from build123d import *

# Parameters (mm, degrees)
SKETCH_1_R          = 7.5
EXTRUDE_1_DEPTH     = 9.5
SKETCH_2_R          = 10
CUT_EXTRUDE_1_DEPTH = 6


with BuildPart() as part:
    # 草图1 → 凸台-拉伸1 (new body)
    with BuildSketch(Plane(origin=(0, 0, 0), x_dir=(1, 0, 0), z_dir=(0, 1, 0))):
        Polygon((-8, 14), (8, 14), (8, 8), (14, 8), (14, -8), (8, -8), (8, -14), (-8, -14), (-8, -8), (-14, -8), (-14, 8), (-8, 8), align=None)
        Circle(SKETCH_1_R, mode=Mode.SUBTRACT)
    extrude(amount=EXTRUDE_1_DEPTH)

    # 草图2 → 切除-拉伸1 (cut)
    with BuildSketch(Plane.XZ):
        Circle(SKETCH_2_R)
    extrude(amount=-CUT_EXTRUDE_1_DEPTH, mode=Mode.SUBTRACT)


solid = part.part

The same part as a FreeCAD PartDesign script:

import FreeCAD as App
import Part
import Sketcher
Q = App.Units.Quantity

doc = App.newDocument("Part")
params = doc.addObject("Spreadsheet::Sheet", "Params")
for row, (alias, value) in enumerate([
    ("sketch1_diameter", "15 mm"),
    ("sketch1_width", "16 mm"),
    ("sketch1_width2", "6 mm"),
    ("pad1_length", "9.5 mm"),
    ("sketch2_diameter", "20 mm"),
    ("pocket1_length", "6 mm"),
], start=1):
    params.set(f"A{row}", alias)
    params.set(f"B{row}", "=" + value)
    params.setAlias(f"B{row}", alias)

body = doc.addObject("PartDesign::Body", "Body")

# Sketch on XZ plane
sketch1 = body.newObject("Sketcher::SketchObject", "Sketch")
sketch1.AttachmentSupport = (doc.getObject("XZ_Plane"), [""])
sketch1.MapMode = "FlatFace"
sketch1.addGeometry([
    Part.LineSegment(App.Vector(8, -14, 0), App.Vector(-8, -14, 0)),  # 0
    Part.LineSegment(App.Vector(-8, -14, 0), App.Vector(-8, -8, 0)),  # 1
    Part.LineSegment(App.Vector(-8, -8, 0), App.Vector(-14, -8, 0)),  # 2
    Part.LineSegment(App.Vector(-14, -8, 0), App.Vector(-14, 8, 0)),  # 3
    Part.LineSegment(App.Vector(-14, 8, 0), App.Vector(-8, 8, 0)),  # 4
    Part.LineSegment(App.Vector(-8, 8, 0), App.Vector(-8, 14, 0)),  # 5
    Part.LineSegment(App.Vector(-8, 14, 0), App.Vector(8, 14, 0)),  # 6
    Part.LineSegment(App.Vector(8, 14, 0), App.Vector(8, 8, 0)),  # 7
    Part.LineSegment(App.Vector(8, 8, 0), App.Vector(14, 8, 0)),  # 8
    Part.LineSegment(App.Vector(14, 8, 0), App.Vector(14, -8, 0)),  # 9
    Part.LineSegment(App.Vector(14, -8, 0), App.Vector(8, -8, 0)),  # 10
    Part.LineSegment(App.Vector(8, -8, 0), App.Vector(8, -14, 0)),  # 11
    Part.Circle(App.Vector(0, 0, 0), App.Vector(0, 0, 1), 8),  # 12
], False)
sketch1.addConstraint([
    Sketcher.Constraint("Coincident", 0, 2, 1, 1),
    Sketcher.Constraint("Coincident", 1, 2, 2, 1),
    Sketcher.Constraint("Coincident", 2, 2, 3, 1),
    Sketcher.Constraint("Coincident", 3, 2, 4, 1),
    Sketcher.Constraint("Coincident", 4, 2, 5, 1),
    Sketcher.Constraint("Coincident", 5, 2, 6, 1),
    Sketcher.Constraint("Coincident", 6, 2, 7, 1),
    Sketcher.Constraint("Coincident", 7, 2, 8, 1),
    Sketcher.Constraint("Coincident", 8, 2, 9, 1),
    Sketcher.Constraint("Coincident", 9, 2, 10, 1),
    Sketcher.Constraint("Coincident", 10, 2, 11, 1),
    Sketcher.Constraint("Coincident", 11, 2, 0, 1),
    Sketcher.Constraint("Horizontal", 0),
    Sketcher.Constraint("Vertical", 1),
    Sketcher.Constraint("Horizontal", 2),
    Sketcher.Constraint("Vertical", 3),
    Sketcher.Constraint("Horizontal", 4),
    Sketcher.Constraint("Vertical", 5),
    Sketcher.Constraint("Horizontal", 6),
    Sketcher.Constraint("Vertical", 7),
    Sketcher.Constraint("Horizontal", 8),
    Sketcher.Constraint("Vertical", 9),
    Sketcher.Constraint("Horizontal", 10),
    Sketcher.Constraint("Vertical", 11),
    Sketcher.Constraint("Coincident", 12, 3, -1, 1),
    Sketcher.Constraint("Symmetric", 0, 2, 6, 2, -1, 1),
    Sketcher.Constraint("Symmetric", 2, 2, 8, 2, -1, 1),
    Sketcher.Constraint("Symmetric", 4, 2, 10, 2, -1, 1),
    Sketcher.Constraint("Symmetric", 4, 2, 7, 2, -2),
    Sketcher.Constraint("Equal", 10, 1),
    Sketcher.Constraint("Equal", 6, 3),
    Sketcher.Constraint("Diameter", 12, Q("15 mm")),
    Sketcher.Constraint("DistanceX", 0, 2, 0, 1, Q("16 mm")),
    Sketcher.Constraint("DistanceX", 2, 2, 2, 1, Q("6 mm")),
])
sketch1.setExpression("Constraints[31]", "Params.sketch1_diameter")
sketch1.setExpression("Constraints[32]", "Params.sketch1_width")
sketch1.setExpression("Constraints[33]", "Params.sketch1_width2")
pad1 = body.newObject("PartDesign::Pad", "Pad")
pad1.Profile = sketch1
pad1.setExpression("Length", "Params.pad1_length")
pad1.Reversed = True

# Sketch on XZ plane
sketch2 = body.newObject("Sketcher::SketchObject", "Sketch001")
sketch2.AttachmentSupport = (doc.getObject("XZ_Plane"), [""])
sketch2.MapMode = "FlatFace"
sketch2.addGeometry(Part.Circle(App.Vector(0, 0, 0), App.Vector(0, 0, 1), 10), False)
sketch2.addConstraint([
    Sketcher.Constraint("Coincident", 0, 3, -1, 1),
    Sketcher.Constraint("Diameter", 0, Q("20 mm")),
])
sketch2.setExpression("Constraints[1]", "Params.sketch2_diameter")
pocket1 = body.newObject("PartDesign::Pocket", "Pocket")
pocket1.Profile = sketch2
pocket1.setExpression("Length", "Params.pocket1_length")

doc.recompute()
